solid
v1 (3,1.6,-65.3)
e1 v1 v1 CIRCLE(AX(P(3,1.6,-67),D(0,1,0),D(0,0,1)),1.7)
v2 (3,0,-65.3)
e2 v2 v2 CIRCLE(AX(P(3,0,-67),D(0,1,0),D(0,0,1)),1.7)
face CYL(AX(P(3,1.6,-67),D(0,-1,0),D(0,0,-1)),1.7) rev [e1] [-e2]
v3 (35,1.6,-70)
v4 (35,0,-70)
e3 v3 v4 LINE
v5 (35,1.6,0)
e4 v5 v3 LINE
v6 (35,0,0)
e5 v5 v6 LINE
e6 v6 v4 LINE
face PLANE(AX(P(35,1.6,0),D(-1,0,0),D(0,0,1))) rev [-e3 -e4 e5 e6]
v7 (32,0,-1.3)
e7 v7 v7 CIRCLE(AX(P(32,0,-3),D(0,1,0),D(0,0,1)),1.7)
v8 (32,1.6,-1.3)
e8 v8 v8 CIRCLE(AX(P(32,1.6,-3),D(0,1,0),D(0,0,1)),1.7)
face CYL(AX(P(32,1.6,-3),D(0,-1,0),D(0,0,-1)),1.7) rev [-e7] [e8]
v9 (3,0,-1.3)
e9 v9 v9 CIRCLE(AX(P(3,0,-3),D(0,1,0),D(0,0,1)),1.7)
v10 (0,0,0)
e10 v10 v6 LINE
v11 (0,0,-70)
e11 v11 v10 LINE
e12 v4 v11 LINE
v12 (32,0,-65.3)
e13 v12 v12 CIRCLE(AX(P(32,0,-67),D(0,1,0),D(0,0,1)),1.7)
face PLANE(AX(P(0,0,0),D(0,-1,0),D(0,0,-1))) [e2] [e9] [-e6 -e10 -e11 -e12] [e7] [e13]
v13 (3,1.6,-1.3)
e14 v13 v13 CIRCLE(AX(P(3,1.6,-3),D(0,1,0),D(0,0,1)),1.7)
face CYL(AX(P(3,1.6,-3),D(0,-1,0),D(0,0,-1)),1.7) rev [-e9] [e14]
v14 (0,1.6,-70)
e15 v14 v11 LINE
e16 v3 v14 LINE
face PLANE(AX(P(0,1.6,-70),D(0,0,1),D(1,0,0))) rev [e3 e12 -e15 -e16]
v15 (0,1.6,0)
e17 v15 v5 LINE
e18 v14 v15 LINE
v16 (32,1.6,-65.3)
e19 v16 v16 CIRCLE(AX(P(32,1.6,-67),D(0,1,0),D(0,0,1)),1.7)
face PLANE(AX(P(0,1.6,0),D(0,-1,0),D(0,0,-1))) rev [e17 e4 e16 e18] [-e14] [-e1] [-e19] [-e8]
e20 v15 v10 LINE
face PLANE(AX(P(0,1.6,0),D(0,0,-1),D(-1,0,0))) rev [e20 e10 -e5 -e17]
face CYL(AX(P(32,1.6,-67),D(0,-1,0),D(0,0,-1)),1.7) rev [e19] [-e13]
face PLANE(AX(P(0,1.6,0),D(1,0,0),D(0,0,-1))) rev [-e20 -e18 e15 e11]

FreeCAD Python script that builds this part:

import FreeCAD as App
import Part
import Sketcher
from FreeCAD import Vector


def add_polygon(sketch, points):
    """Adds a closed chain of lines whose ends are joined by coincident constraints."""
    first, n = sketch.GeometryCount, len(points)
    for a, b in zip(points, points[1:] + points[:1]):
        sketch.addGeometry(Part.LineSegment(App.Vector(*a, 0), App.Vector(*b, 0)), False)
    for i in range(n):
        sketch.addConstraint(Sketcher.Constraint("Coincident", first + i, 2, first + (i + 1) % n, 1))

doc = App.newDocument("Part")
body = doc.addObject("PartDesign::Body", "Body")

# Sketch on XZ plane
sketch1 = doc.addObject("Sketcher::SketchObject", "Sketch")
body.addObject(sketch1)
sketch1.AttachmentSupport = (doc.XZ_Plane, [""])
sketch1.MapMode = "FlatFace"
add_polygon(sketch1, [(0, -70), (0, 0), (35, 0), (35, -70)])  # lines 0-3
sketch1.addGeometry(Part.Circle(Vector(3, -3, 0), Vector(0, 0, 1), 1.7), False)  # 4
sketch1.addGeometry(Part.Circle(Vector(32, -3, 0), Vector(0, 0, 1), 1.7), False)  # 5
sketch1.addGeometry(Part.Circle(Vector(3, -67, 0), Vector(0, 0, 1), 1.7), False)  # 6
sketch1.addGeometry(Part.Circle(Vector(32, -67, 0), Vector(0, 0, 1), 1.7), False)  # 7
sketch1.addConstraint([
    Sketcher.Constraint("Vertical", 0),
    Sketcher.Constraint("Horizontal", 1),
    Sketcher.Constraint("Vertical", 2),
    Sketcher.Constraint("Horizontal", 3),
    Sketcher.Constraint("Coincident", 0, 2, -1, 1),
    Sketcher.Constraint("Equal", 4, 5),
    Sketcher.Constraint("Equal", 5, 6),
    Sketcher.Constraint("Equal", 6, 7),
    Sketcher.Constraint("Horizontal", 4, 3, 5, 3),
    Sketcher.Constraint("Horizontal", 6, 3, 7, 3),
    Sketcher.Constraint("Vertical", 4, 3, 6, 3),
    Sketcher.Constraint("Vertical", 5, 3, 7, 3),
    Sketcher.Constraint("Diameter", 4, 3.4),
    Sketcher.Constraint("DistanceX", 1, 1, 1, 2, 35.0),
    Sketcher.Constraint("DistanceY", 0, 1, 0, 2, 70.0),
    Sketcher.Constraint("DistanceX", -1, 1, 4, 3, 3.0),
    Sketcher.Constraint("DistanceY", 4, 3, -1, 1, 3.0),
    Sketcher.Constraint("DistanceX", -1, 1, 5, 3, 32.0),
    Sketcher.Constraint("DistanceY", 6, 3, -1, 1, 67.0),
])
pad1 = doc.addObject("PartDesign::Pad", "Pad")
body.addObject(pad1)
pad1.Profile = sketch1
pad1.Length = 1.6
pad1.Reversed = True

doc.recompute()
